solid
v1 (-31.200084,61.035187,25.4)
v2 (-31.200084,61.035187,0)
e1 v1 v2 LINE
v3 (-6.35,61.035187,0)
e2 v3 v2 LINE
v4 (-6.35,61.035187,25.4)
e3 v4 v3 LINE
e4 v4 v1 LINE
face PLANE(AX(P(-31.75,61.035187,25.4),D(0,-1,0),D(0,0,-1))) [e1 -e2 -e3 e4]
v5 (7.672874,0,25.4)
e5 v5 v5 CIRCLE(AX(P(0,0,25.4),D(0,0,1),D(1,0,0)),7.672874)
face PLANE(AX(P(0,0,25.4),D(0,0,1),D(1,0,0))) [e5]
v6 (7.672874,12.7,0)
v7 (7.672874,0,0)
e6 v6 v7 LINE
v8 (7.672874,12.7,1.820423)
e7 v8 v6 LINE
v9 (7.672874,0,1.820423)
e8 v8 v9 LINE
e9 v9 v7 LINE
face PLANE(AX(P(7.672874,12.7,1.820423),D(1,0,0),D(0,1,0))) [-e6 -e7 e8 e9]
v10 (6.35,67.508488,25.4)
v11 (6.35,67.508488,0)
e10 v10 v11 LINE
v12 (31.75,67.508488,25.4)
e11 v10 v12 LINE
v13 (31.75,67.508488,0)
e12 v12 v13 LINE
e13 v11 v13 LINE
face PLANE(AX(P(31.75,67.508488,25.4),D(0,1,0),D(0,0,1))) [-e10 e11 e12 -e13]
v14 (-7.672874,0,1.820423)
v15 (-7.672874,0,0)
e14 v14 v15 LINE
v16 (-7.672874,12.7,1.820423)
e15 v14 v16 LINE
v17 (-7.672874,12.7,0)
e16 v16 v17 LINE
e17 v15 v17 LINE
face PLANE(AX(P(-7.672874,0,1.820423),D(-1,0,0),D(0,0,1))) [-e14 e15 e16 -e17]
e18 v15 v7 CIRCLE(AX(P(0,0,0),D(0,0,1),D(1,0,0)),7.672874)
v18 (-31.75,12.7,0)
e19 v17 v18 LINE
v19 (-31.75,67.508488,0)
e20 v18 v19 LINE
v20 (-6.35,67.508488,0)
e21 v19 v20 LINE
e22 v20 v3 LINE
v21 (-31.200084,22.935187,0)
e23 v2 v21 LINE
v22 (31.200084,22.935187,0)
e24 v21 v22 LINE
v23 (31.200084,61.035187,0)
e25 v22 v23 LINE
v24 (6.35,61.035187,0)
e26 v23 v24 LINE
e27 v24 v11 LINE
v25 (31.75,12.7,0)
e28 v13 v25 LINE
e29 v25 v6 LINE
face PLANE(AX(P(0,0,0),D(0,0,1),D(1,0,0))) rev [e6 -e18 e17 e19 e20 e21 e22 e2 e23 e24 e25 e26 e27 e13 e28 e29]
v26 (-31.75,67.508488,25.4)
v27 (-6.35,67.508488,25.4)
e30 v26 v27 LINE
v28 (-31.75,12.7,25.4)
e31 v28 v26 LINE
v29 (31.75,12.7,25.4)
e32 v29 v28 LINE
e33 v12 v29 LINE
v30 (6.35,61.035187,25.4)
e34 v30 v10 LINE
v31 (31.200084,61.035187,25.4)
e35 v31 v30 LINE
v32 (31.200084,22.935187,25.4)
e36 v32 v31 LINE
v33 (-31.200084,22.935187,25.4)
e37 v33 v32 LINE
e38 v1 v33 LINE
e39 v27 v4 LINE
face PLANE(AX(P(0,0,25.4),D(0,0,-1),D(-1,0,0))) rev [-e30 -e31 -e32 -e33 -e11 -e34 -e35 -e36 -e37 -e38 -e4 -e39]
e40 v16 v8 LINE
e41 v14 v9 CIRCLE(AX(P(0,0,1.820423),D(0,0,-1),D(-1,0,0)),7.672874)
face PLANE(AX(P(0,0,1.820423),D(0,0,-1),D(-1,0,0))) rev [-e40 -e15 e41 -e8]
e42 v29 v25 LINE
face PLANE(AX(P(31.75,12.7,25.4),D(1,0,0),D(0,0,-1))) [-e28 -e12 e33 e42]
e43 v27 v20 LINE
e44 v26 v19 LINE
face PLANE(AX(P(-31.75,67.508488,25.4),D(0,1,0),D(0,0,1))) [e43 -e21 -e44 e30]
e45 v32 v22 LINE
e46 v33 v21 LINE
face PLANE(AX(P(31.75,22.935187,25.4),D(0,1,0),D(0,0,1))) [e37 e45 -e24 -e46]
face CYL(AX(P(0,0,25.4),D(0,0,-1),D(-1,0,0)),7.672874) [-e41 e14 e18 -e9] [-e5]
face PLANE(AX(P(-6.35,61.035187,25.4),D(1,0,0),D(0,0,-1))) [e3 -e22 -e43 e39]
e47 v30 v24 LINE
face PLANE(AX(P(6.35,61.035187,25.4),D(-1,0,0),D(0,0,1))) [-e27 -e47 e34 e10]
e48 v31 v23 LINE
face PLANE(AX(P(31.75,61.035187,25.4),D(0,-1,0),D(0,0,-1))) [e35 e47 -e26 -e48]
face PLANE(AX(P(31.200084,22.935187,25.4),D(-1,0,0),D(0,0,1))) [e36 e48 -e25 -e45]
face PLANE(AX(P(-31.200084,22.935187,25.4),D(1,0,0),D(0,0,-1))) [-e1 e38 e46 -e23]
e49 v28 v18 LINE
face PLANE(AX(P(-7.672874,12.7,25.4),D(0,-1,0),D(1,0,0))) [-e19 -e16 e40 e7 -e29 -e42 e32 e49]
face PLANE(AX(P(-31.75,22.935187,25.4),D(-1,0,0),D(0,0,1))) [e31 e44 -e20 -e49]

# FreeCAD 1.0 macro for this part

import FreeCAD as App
import Part
import Sketcher

V = App.Vector
Q = App.Units.Quantity


def add_polygon(sketch, points):
    """Adds a closed chain of lines whose ends are joined by coincident constraints."""
    first, n = sketch.GeometryCount, len(points)
    for a, b in zip(points, points[1:] + points[:1]):
        sketch.addGeometry(Part.LineSegment(App.Vector(*a, 0), App.Vector(*b, 0)), False)
    for i in range(n):
        sketch.addConstraint(Sketcher.Constraint("Coincident", first + i, 2, first + (i + 1) % n, 1))

doc = App.newDocument("Part")
body = doc.addObject("PartDesign::Body", "Body")

# Sketch on XY plane
sketch1 = body.newObject("Sketcher::SketchObject", "Sketch")
sketch1.AttachmentSupport = (doc.getObject("XY_Plane"), [""])
sketch1.MapMode = "FlatFace"
sketch1.addGeometry(Part.Circle(V(0, 0, 0), V(0, 0, 1), 7.672874), False)
sketch1.addConstraint(Sketcher.Constraint("Coincident", 0, 3, -1, 1))
sketch1.addConstraint(Sketcher.Constraint("Diameter", 0, 15.345747))
pad1 = body.newObject("PartDesign::Pad", "Pad")
pad1.Profile = sketch1
pad1.Length = Q("1 in")

# Sketch on XY plane
sketch2 = body.newObject("Sketcher::SketchObject", "Sketch001")
sketch2.AttachmentSupport = (doc.getObject("XY_Plane"), [""])
sketch2.MapMode = "FlatFace"
add_polygon(sketch2, [(7.672874, 12.7), (7.672874, 0), (-7.672874, 0), (-7.672874, 12.7)])  # lines 0-3
sketch2.addConstraint(Sketcher.Constraint("Vertical", 0))
sketch2.addConstraint(Sketcher.Constraint("Horizontal", 1))
sketch2.addConstraint(Sketcher.Constraint("Vertical", 2))
sketch2.addConstraint(Sketcher.Constraint("Horizontal", 3))
sketch2.addConstraint(Sketcher.Constraint("Symmetric", 0, 2, 1, 2, -1, 1))
sketch2.addConstraint(Sketcher.Constraint("DistanceY", 0, 2, 0, 1, Q("0.5 in")))
sketch2.addConstraint(Sketcher.Constraint("DistanceX", 1, 2, 1, 1, 15.345747))
pad2 = body.newObject("PartDesign::Pad", "Pad001")
pad2.Profile = sketch2
pad2.Length = 1.820423

# Sketch on XY plane
sketch3 = body.newObject("Sketcher::SketchObject", "Sketch002")
sketch3.AttachmentSupport = (doc.getObject("XY_Plane"), [""])
sketch3.MapMode = "FlatFace"
add_polygon(sketch3, [(31.75, 22.935187), (31.75, 12.7), (-31.75, 12.7), (-31.75, 22.935187)])  # lines 0-3
sketch3.addConstraint(Sketcher.Constraint("Vertical", 0))
sketch3.addConstraint(Sketcher.Constraint("Horizontal", 1))
sketch3.addConstraint(Sketcher.Constraint("Vertical", 2))
sketch3.addConstraint(Sketcher.Constraint("Horizontal", 3))
sketch3.addConstraint(Sketcher.Constraint("DistanceX", 1, 2, 1, 1, Q("2.5 in")))
sketch3.addConstraint(Sketcher.Constraint("DistanceY", -1, 1, 0, 2, Q("0.5 in")))
sketch3.addConstraint(Sketcher.Constraint("DistanceX", -1, 1, 0, 2, Q("1.25 in")))
sketch3.addConstraint(Sketcher.Constraint("DistanceY", 0, 2, 0, 1, 10.235187))
pad3 = body.newObject("PartDesign::Pad", "Pad002")
pad3.Profile = sketch3
pad3.Length = Q("1 in")

# Sketch on XY plane
sketch4 = body.newObject("Sketcher::SketchObject", "Sketch003")
sketch4.AttachmentSupport = (doc.getObject("XY_Plane"), [""])
sketch4.MapMode = "FlatFace"
add_polygon(sketch4, [(-31.200084, 61.035187), (-31.200084, 22.935187), (-31.75, 22.935187), (-31.75, 61.035187)])  # lines 0-3
add_polygon(sketch4, [(31.75, 61.035187), (31.75, 22.935187), (31.200084, 22.935187), (31.200084, 61.035187)])  # lines 4-7
sketch4.addConstraint(Sketcher.Constraint("Vertical", 0))
sketch4.addConstraint(Sketcher.Constraint("Horizontal", 1))
sketch4.addConstraint(Sketcher.Constraint("Vertical", 2))
sketch4.addConstraint(Sketcher.Constraint("Horizontal", 3))
sketch4.addConstraint(Sketcher.Constraint("Vertical", 4))
sketch4.addConstraint(Sketcher.Constraint("Horizontal", 5))
sketch4.addConstraint(Sketcher.Constraint("Vertical", 6))
sketch4.addConstraint(Sketcher.Constraint("Horizontal", 7))
sketch4.addConstraint(Sketcher.Constraint("Symmetric", 1, 2, 4, 2, -2))
sketch4.addConstraint(Sketcher.Constraint("Symmetric", 3, 2, 6, 2, -2))
sketch4.addConstraint(Sketcher.Constraint("DistanceY", 0, 2, 0, 1, Q("1.5 in")))
sketch4.addConstraint(Sketcher.Constraint("DistanceX", 1, 2, 4, 2, Q("2.5 in")))
sketch4.addConstraint(Sketcher.Constraint("DistanceX", 1, 2, 1, 1, 0.549916))
sketch4.addConstraint(Sketcher.Constraint("DistanceY", -1, 1, 0, 2, 22.935187))
pad4 = body.newObject("PartDesign::Pad", "Pad003")
pad4.Profile = sketch4
pad4.Length = Q("1 in")

# Sketch on XY plane
sketch5 = body.newObject("Sketcher::SketchObject", "Sketch004")
sketch5.AttachmentSupport = (doc.getObject("XY_Plane"), [""])
sketch5.MapMode = "FlatFace"
add_polygon(sketch5, [(-6.35, 67.508488), (-6.35, 61.035187), (-31.75, 61.035187), (-31.75, 67.508488)])  # lines 0-3
add_polygon(sketch5, [(31.75, 67.508488), (31.75, 61.035187), (6.35, 61.035187), (6.35, 67.508488)])  # lines 4-7
sketch5.addConstraint(Sketcher.Constraint("Vertical", 0))
sketch5.addConstraint(Sketcher.Constraint("Horizontal", 1))
sketch5.addConstraint(Sketcher.Constraint("Vertical", 2))
sketch5.addConstraint(Sketcher.Constraint("Horizontal", 3))
sketch5.addConstraint(Sketcher.Constraint("Vertical", 4))
sketch5.addConstraint(Sketcher.Constraint("Horizontal", 5))
sketch5.addConstraint(Sketcher.Constraint("Vertical", 6))
sketch5.addConstraint(Sketcher.Constraint("Horizontal", 7))
sketch5.addConstraint(Sketcher.Constraint("Symmetric", 1, 2, 4, 2, -2))
sketch5.addConstraint(Sketcher.Constraint("Symmetric", 3, 2, 6, 2, -2))
sketch5.addConstraint(Sketcher.Constraint("DistanceX", 1, 2, 1, 1, Q("1 in")))
sketch5.addConstraint(Sketcher.Constraint("DistanceX", 0, 2, 4, 2, Q("1.5 in")))
sketch5.addConstraint(Sketcher.Constraint("DistanceY", 0, 2, 0, 1, 6.473301))
sketch5.addConstraint(Sketcher.Constraint("DistanceY", -1, 1, 2, 2, 67.508488))
pad5 = body.newObject("PartDesign::Pad", "Pad004")
pad5.Profile = sketch5
pad5.Length = Q("1 in")

doc.recompute()
